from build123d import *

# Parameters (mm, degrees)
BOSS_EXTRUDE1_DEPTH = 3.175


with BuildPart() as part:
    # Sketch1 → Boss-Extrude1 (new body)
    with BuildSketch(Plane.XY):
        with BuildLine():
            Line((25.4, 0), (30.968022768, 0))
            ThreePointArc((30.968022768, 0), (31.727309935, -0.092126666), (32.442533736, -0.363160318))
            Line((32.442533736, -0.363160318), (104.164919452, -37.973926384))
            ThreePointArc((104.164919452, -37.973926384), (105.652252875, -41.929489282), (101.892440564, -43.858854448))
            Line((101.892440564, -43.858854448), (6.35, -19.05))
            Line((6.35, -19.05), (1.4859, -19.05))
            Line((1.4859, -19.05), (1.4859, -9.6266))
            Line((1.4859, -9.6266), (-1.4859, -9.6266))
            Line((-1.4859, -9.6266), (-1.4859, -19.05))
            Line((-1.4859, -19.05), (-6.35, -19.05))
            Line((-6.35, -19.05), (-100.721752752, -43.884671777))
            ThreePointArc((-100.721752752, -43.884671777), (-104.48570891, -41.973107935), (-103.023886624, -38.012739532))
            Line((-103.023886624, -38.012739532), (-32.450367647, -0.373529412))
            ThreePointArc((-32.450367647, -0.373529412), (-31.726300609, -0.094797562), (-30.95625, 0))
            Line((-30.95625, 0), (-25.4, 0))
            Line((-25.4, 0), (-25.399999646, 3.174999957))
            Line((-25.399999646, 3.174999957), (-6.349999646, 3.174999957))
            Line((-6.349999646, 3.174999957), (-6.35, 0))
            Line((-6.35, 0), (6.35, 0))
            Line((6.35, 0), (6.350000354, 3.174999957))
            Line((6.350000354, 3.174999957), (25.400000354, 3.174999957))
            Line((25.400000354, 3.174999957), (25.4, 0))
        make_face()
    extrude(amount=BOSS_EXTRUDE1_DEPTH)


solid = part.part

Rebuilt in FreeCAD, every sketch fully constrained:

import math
import FreeCAD as App
import Part
import Sketcher
from FreeCAD import Vector
Q = App.Units.Quantity

doc = App.newDocument("Part")
body = doc.addObject("PartDesign::Body", "Body")

sketch1 = body.newObject("Sketcher::SketchObject", "Sketch")
sketch1.AttachmentSupport = (doc.getObject("XY_Plane"), [""])
sketch1.MapMode = "FlatFace"
sketch1.addGeometry([
    Part.LineSegment(Vector(31, 0, 0), Vector(25.4, 0, 0)),
    Part.LineSegment(Vector(25.4, 0, 0), Vector(25.4, 3.2, 0)),
    Part.LineSegment(Vector(25.4, 3.2, 0), Vector(6.4, 3.2, 0)),
    Part.LineSegment(Vector(6.4, 3.2, 0), Vector(6.3, 0, 0)),
    Part.LineSegment(Vector(6.3, 0, 0), Vector(-6.3, 0, 0)),
    Part.LineSegment(Vector(-6.3, 0, 0), Vector(-6.3, 3.2, 0)),
    Part.LineSegment(Vector(-6.3, 3.2, 0), Vector(-25.4, 3.2, 0)),
    Part.LineSegment(Vector(-25.4, 3.2, 0), Vector(-25.4, 0, 0)),
    Part.LineSegment(Vector(-25.4, 0, 0), Vector(-31, 0, 0)),
    Part.ArcOfCircle(Part.Circle(Vector(-31, -3.2, 0), Vector(0, 0, 1), 3.2), math.radians(90), math.radians(118)),
    Part.LineSegment(Vector(-32.5, -0.4, 0), Vector(-103, -38, 0)),
    Part.ArcOfCircle(Part.Circle(Vector(-101.5, -40.8, 0), Vector(0, 0, 1), 3.2), math.radians(118), math.radians(285)),
    Part.LineSegment(Vector(-100.7, -43.9, 0), Vector(-6.3, -19.1, 0)),
    Part.LineSegment(Vector(-6.3, -19.1, 0), Vector(-1.5, -19.1, 0)),
    Part.LineSegment(Vector(-1.5, -19.1, 0), Vector(-1.5, -9.6, 0)),
    Part.LineSegment(Vector(-1.5, -9.6, 0), Vector(1.5, -9.6, 0)),
    Part.LineSegment(Vector(1.5, -9.6, 0), Vector(1.5, -19.1, 0)),
    Part.LineSegment(Vector(1.5, -19.1, 0), Vector(6.3, -19.1, 0)),
    Part.LineSegment(Vector(6.3, -19.1, 0), Vector(101.9, -43.9, 0)),
    Part.ArcOfCircle(Part.Circle(Vector(102.7, -40.8, 0), Vector(0, 0, 1), 3.2), math.radians(-105), math.radians(62)),
    Part.LineSegment(Vector(104.2, -38, 0), Vector(32.4, -0.4, 0)),
    Part.ArcOfCircle(Part.Circle(Vector(31, -3.2, 0), Vector(0, 0, 1), 3.2), math.radians(62), math.radians(90)),
], False)
sketch1.addConstraint([
    Sketcher.Constraint("Coincident", 0, 2, 1, 1),
    Sketcher.Constraint("Coincident", 1, 2, 2, 1),
    Sketcher.Constraint("Coincident", 2, 2, 3, 1),
    Sketcher.Constraint("Coincident", 3, 2, 4, 1),
    Sketcher.Constraint("Coincident", 4, 2, 5, 1),
    Sketcher.Constraint("Coincident", 5, 2, 6, 1),
    Sketcher.Constraint("Coincident", 6, 2, 7, 1),
    Sketcher.Constraint("Coincident", 7, 2, 8, 1),
    Sketcher.Constraint("Tangent", 8, 2, 9, 1),
    Sketcher.Constraint("Tangent", 9, 2, 10, 1),
    Sketcher.Constraint("Tangent", 10, 2, 11, 1),
    Sketcher.Constraint("Tangent", 11, 2, 12, 1),
    Sketcher.Constraint("Coincident", 12, 2, 13, 1),
    Sketcher.Constraint("Coincident", 13, 2, 14, 1),
    Sketcher.Constraint("Coincident", 14, 2, 15, 1),
    Sketcher.Constraint("Coincident", 15, 2, 16, 1),
    Sketcher.Constraint("Coincident", 16, 2, 17, 1),
    Sketcher.Constraint("Coincident", 17, 2, 18, 1),
    Sketcher.Constraint("Tangent", 18, 2, 19, 1),
    Sketcher.Constraint("Tangent", 19, 2, 20, 1),
    Sketcher.Constraint("Tangent", 20, 2, 21, 1),
    Sketcher.Constraint("Tangent", 21, 2, 0, 1),
    Sketcher.Constraint("Horizontal", 0),
    Sketcher.Constraint("Vertical", 1),
    Sketcher.Constraint("Horizontal", 2),
    Sketcher.Constraint("Vertical", 3),
    Sketcher.Constraint("Horizontal", 4),
    Sketcher.Constraint("Vertical", 5),
    Sketcher.Constraint("Horizontal", 6),
    Sketcher.Constraint("Vertical", 7),
    Sketcher.Constraint("Horizontal", 8),
    Sketcher.Constraint("Horizontal", 13),
    Sketcher.Constraint("Vertical", 14),
    Sketcher.Constraint("Horizontal", 15),
    Sketcher.Constraint("Vertical", 16),
    Sketcher.Constraint("Horizontal", 17),
    Sketcher.Constraint("Equal", 9, 11),
    Sketcher.Constraint("Equal", 11, 19),
    Sketcher.Constraint("Equal", 19, 21),
    Sketcher.Constraint("Symmetric", 3, 2, 4, 2, -1, 1),
    Sketcher.Constraint("Symmetric", 0, 2, 7, 2, -1, 1),
    Sketcher.Constraint("Symmetric", 13, 2, 16, 2, -2),
    Sketcher.Constraint("PointOnObject", 0, 2, -1),
    Sketcher.Constraint("Horizontal", 2, 2, 5, 2),
    Sketcher.Constraint("Vertical", 5, 2, 12, 2),
    Sketcher.Constraint("Vertical", 3, 2, 17, 2),
    Sketcher.Constraint("DistanceX", 4, 2, 4, 1, Q("0.5 in")),
    Sketcher.Constraint("DistanceX", -1, 1, 0, 2, Q("1 in")),
    Sketcher.Constraint("Radius", 9, Q("0.125 in")),
    Sketcher.Constraint("DistanceX", 8, 2, 8, 1, Q("0.21875 in")),
    Sketcher.Constraint("DistanceX", 15, 1, 15, 2, Q("0.117 in")),
    Sketcher.Constraint("DistanceY", 1, 1, 1, 2, Q("0.125 in")),
    Sketcher.Constraint("DistanceY", 14, 1, 14, 2, Q("0.371 in")),
    Sketcher.Constraint("DistanceY", 12, 2, -1, 1, Q("0.75 in")),
    Sketcher.Constraint("DistanceX", 21, 3, 18, 2, Q("2.7922999 in")),
    Sketcher.Constraint("Distance", 10, Q("79.983322 mm")),
    Sketcher.Constraint("Distance", 20, Q("80.985618 mm")),
    Sketcher.Constraint("DistanceX", 0, 2, 0, 1, Q("5.568023 mm")),
    Sketcher.Constraint("DistanceX", 11, 3, -1, 1, Q("101.529769 mm")),
])
pad1 = body.newObject("PartDesign::Pad", "Pad")
pad1.Profile = sketch1
pad1.Length = Q("0.125 in")

doc.recompute()
